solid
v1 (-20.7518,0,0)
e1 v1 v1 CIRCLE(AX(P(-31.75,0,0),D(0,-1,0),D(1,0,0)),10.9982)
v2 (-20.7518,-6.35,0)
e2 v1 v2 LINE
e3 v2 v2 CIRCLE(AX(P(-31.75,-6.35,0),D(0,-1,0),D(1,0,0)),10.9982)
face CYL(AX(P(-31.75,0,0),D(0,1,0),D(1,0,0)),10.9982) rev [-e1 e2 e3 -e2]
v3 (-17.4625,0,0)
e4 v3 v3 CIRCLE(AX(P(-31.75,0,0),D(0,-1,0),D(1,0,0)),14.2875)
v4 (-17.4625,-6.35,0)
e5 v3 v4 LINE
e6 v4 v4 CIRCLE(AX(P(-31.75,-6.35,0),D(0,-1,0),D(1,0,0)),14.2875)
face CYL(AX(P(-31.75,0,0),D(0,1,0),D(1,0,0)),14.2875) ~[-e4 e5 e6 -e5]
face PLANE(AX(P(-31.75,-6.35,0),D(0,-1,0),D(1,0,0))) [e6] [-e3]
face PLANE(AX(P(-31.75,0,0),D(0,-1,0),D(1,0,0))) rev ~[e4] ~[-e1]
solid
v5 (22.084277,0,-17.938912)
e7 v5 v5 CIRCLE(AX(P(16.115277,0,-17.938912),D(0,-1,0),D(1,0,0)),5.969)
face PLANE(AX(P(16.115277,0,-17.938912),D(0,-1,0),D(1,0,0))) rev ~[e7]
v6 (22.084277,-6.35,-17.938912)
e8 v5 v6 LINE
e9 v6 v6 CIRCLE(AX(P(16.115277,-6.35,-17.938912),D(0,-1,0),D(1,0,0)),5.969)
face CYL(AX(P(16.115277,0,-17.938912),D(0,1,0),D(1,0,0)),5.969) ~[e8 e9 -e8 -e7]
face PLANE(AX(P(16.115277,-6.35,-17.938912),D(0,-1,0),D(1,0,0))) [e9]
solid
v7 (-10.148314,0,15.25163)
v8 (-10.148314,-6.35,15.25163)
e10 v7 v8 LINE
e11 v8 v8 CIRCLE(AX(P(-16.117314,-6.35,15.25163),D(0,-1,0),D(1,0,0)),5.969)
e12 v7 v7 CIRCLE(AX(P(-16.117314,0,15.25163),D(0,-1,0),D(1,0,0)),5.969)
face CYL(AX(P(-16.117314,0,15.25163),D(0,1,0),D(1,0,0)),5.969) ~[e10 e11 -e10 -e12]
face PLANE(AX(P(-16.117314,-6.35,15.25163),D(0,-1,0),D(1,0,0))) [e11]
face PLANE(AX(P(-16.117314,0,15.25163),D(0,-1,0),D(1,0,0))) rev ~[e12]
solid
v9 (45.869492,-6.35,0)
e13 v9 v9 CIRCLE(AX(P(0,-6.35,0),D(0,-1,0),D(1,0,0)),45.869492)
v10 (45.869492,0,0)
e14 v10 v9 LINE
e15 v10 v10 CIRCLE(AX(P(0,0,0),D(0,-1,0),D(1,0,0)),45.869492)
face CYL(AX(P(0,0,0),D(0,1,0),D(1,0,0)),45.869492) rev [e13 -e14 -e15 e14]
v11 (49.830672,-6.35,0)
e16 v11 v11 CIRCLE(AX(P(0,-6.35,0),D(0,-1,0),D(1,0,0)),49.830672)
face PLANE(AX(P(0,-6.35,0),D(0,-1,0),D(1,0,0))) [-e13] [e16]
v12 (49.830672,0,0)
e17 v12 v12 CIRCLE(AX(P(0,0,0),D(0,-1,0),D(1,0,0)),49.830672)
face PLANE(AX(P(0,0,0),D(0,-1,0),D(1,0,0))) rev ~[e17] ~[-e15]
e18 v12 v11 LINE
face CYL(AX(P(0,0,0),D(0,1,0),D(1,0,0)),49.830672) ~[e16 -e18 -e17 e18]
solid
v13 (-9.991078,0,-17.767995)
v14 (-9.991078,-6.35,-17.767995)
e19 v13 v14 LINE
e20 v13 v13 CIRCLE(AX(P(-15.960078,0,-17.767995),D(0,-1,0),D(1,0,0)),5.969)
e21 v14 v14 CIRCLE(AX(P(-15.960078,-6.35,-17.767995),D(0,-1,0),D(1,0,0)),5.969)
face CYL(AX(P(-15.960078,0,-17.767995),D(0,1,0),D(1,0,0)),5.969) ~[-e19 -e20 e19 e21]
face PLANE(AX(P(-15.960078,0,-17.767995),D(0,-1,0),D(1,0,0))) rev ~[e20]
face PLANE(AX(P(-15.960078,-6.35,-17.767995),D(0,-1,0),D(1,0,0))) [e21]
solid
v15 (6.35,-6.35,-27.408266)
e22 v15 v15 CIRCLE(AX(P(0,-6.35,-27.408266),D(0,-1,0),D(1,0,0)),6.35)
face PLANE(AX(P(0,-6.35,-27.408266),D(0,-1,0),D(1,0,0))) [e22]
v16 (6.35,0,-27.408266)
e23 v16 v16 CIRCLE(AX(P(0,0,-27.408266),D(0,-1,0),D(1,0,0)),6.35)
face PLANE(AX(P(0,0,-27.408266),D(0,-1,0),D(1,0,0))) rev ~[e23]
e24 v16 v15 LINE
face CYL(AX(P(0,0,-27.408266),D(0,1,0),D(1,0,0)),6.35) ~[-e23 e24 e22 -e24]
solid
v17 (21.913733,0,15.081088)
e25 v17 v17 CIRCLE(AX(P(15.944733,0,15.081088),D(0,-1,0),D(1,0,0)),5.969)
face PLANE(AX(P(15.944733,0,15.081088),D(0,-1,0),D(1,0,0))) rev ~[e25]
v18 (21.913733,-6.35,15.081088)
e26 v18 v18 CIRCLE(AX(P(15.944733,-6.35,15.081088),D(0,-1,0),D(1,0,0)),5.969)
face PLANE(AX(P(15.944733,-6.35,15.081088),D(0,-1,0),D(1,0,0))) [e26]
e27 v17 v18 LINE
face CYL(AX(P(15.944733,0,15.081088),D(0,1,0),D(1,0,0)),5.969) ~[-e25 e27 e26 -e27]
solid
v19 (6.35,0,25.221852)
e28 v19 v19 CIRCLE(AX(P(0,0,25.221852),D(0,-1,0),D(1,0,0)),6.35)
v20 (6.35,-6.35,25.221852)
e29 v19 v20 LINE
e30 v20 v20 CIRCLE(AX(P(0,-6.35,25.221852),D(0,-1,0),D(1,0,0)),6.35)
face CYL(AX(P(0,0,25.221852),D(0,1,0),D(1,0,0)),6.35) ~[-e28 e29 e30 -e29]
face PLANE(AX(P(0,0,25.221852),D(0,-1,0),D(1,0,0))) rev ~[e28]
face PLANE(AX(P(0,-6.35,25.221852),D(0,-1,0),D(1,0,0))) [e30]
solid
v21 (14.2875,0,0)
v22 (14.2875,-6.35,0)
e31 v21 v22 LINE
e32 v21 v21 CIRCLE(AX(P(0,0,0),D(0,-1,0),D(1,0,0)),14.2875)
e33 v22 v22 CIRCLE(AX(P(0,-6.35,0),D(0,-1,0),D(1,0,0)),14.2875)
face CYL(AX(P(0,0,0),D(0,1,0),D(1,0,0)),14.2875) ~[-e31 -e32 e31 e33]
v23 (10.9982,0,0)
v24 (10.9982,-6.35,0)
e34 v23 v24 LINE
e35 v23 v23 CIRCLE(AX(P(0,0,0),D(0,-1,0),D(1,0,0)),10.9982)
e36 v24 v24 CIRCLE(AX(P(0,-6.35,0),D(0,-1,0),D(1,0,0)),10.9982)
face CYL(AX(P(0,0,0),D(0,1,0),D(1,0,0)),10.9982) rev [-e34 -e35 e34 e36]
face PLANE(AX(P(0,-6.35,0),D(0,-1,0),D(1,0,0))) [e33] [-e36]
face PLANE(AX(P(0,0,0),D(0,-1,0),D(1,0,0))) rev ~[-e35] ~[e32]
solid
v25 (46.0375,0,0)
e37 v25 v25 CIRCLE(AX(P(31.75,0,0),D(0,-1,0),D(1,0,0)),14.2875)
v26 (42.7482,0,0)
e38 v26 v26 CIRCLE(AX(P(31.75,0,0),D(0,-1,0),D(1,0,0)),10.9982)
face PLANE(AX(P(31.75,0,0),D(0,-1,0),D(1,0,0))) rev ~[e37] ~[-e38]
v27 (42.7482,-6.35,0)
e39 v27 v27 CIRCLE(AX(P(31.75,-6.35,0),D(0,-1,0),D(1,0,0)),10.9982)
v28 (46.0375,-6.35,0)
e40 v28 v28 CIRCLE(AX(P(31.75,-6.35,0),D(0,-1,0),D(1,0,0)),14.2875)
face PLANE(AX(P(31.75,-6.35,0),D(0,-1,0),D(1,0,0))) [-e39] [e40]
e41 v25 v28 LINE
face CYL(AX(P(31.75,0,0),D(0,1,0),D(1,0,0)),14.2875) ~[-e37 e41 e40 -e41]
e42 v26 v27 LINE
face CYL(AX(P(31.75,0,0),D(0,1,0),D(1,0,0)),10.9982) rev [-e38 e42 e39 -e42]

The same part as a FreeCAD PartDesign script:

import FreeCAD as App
import Part
import Sketcher

V = App.Vector
Q = App.Units.Quantity

doc = App.newDocument("Part")
params = doc.addObject("Spreadsheet::Sheet", "Params")
for row, (alias, value) in enumerate([
    ("sketch1_diameter", "1.125 in"),
    ("sketch1_diameter2", "0.866 in"),
    ("pad1_length", "0.25 in"),
    ("sketch2_diameter", "1.125 in"),
    ("sketch2_diameter2", "0.866 in"),
    ("pad2_length", "0.25 in"),
    ("sketch3_diameter", "1.125 in"),
    ("sketch3_diameter2", "0.866 in"),
    ("pad3_length", "0.25 in"),
    ("pad4_length", "0.25 in"),
    ("sketch5_diameter", "0.47 in"),
    ("pad5_length", "0.25 in"),
    ("sketch6_diameter", "0.47 in"),
    ("pad6_length", "0.25 in"),
    ("sketch7_diameter", "0.47 in"),
    ("pad7_length", "0.25 in"),
    ("sketch8_diameter", "0.47 in"),
    ("pad8_length", "0.25 in"),
    ("sketch9_diameter", "0.5 in"),
    ("pad9_length", "0.25 in"),
    ("sketch10_diameter", "0.5 in"),
    ("pad10_length", "0.25 in"),
], start=1):
    params.set(f"A{row}", alias)
    params.set(f"B{row}", "=" + value)
    params.setAlias(f"B{row}", alias)

body = doc.addObject("PartDesign::Body", "Body")

# Sketch on XZ plane
sketch1 = body.newObject("Sketcher::SketchObject", "Sketch")
sketch1.AttachmentSupport = (doc.getObject("XZ_Plane"), [""])
sketch1.MapMode = "FlatFace"
sketch1.addGeometry(Part.Circle(V(0, 0, 0), V(0, 0, 1), 14.2875), False)
sketch1.addGeometry(Part.Circle(V(0, 0, 0), V(0, 0, 1), 10.9982), False)
sketch1.addConstraint(Sketcher.Constraint("Coincident", 0, 3, -1, 1))
sketch1.addConstraint(Sketcher.Constraint("Coincident", 1, 3, -1, 1))
sketch1.addConstraint(Sketcher.Constraint("Diameter", 0, Q("1.125 in")))
sketch1.addConstraint(Sketcher.Constraint("Diameter", 1, Q("0.866 in")))
sketch1.setExpression("Constraints[2]", "Params.sketch1_diameter")
sketch1.setExpression("Constraints[3]", "Params.sketch1_diameter2")
pad1 = body.newObject("PartDesign::Pad", "Pad")
pad1.Profile = sketch1
pad1.setExpression("Length", "Params.pad1_length")
body2 = doc.addObject("PartDesign::Body", "Body001")

# Sketch on XZ plane
sketch2 = body2.newObject("Sketcher::SketchObject", "Sketch001")
sketch2.AttachmentSupport = (doc.getObject("XZ_Plane001"), [""])
sketch2.MapMode = "FlatFace"
sketch2.addGeometry(Part.Circle(V(31.75, 0, 0), V(0, 0, 1), 14.2875), False)
sketch2.addGeometry(Part.Circle(V(31.75, 0, 0), V(0, 0, 1), 10.9982), False)
sketch2.addConstraint(Sketcher.Constraint("Coincident", 1, 3, 0, 3))
sketch2.addConstraint(Sketcher.Constraint("PointOnObject", 0, 3, -1))
sketch2.addConstraint(Sketcher.Constraint("Diameter", 0, Q("1.125 in")))
sketch2.addConstraint(Sketcher.Constraint("Diameter", 1, Q("0.866 in")))
sketch2.addConstraint(Sketcher.Constraint("DistanceX", -1, 1, 0, 3, Q("1.25 in")))
sketch2.setExpression("Constraints[2]", "Params.sketch2_diameter")
sketch2.setExpression("Constraints[3]", "Params.sketch2_diameter2")
pad2 = body2.newObject("PartDesign::Pad", "Pad001")
pad2.Profile = sketch2
pad2.setExpression("Length", "Params.pad2_length")
body3 = doc.addObject("PartDesign::Body", "Body002")

# Sketch on XZ plane
sketch3 = body3.newObject("Sketcher::SketchObject", "Sketch002")
sketch3.AttachmentSupport = (doc.getObject("XZ_Plane002"), [""])
sketch3.MapMode = "FlatFace"
sketch3.addGeometry(Part.Circle(V(-31.75, 0, 0), V(0, 0, 1), 14.2875), False)
sketch3.addGeometry(Part.Circle(V(-31.75, 0, 0), V(0, 0, 1), 10.9982), False)
sketch3.addConstraint(Sketcher.Constraint("Coincident", 1, 3, 0, 3))
sketch3.addConstraint(Sketcher.Constraint("PointOnObject", 0, 3, -1))
sketch3.addConstraint(Sketcher.Constraint("Diameter", 0, Q("1.125 in")))
sketch3.addConstraint(Sketcher.Constraint("Diameter", 1, Q("0.866 in")))
sketch3.addConstraint(Sketcher.Constraint("DistanceX", 0, 3, -1, 1, Q("1.25 in")))
sketch3.setExpression("Constraints[2]", "Params.sketch3_diameter")
sketch3.setExpression("Constraints[3]", "Params.sketch3_diameter2")
pad3 = body3.newObject("PartDesign::Pad", "Pad002")
pad3.Profile = sketch3
pad3.setExpression("Length", "Params.pad3_length")
body4 = doc.addObject("PartDesign::Body", "Body003")

# Sketch on XZ plane
sketch4 = body4.newObject("Sketcher::SketchObject", "Sketch003")
sketch4.AttachmentSupport = (doc.getObject("XZ_Plane003"), [""])
sketch4.MapMode = "FlatFace"
sketch4.addGeometry(Part.Circle(V(0, 0, 0), V(0, 0, 1), 49.830672), False)
sketch4.addGeometry(Part.Circle(V(0, 0, 0), V(0, 0, 1), 45.869492), False)
sketch4.addConstraint(Sketcher.Constraint("Coincident", 0, 3, -1, 1))
sketch4.addConstraint(Sketcher.Constraint("Coincident", 1, 3, -1, 1))
sketch4.addConstraint(Sketcher.Constraint("Diameter", 0, 99.661344))
sketch4.addConstraint(Sketcher.Constraint("Diameter", 1, 91.738985))
pad4 = body4.newObject("PartDesign::Pad", "Pad003")
pad4.Profile = sketch4
pad4.setExpression("Length", "Params.pad4_length")
body5 = doc.addObject("PartDesign::Body", "Body004")

# Sketch on XZ plane
sketch5 = body5.newObject("Sketcher::SketchObject", "Sketch004")
sketch5.AttachmentSupport = (doc.getObject("XZ_Plane004"), [""])
sketch5.MapMode = "FlatFace"
sketch5.addGeometry(Part.Circle(V(15.944733, 15.081088, 0), V(0, 0, 1), 5.969), False)
sketch5.addConstraint(Sketcher.Constraint("Diameter", 0, Q("0.47 in")))
sketch5.addConstraint(Sketcher.Constraint("DistanceX", -1, 1, 0, 3, 15.944733))
sketch5.addConstraint(Sketcher.Constraint("DistanceY", -1, 1, 0, 3, 15.081088))
sketch5.setExpression("Constraints[0]", "Params.sketch5_diameter")
pad5 = body5.newObject("PartDesign::Pad", "Pad004")
pad5.Profile = sketch5
pad5.setExpression("Length", "Params.pad5_length")
body6 = doc.addObject("PartDesign::Body", "Body005")

# Sketch on XZ plane
sketch6 = body6.newObject("Sketcher::SketchObject", "Sketch005")
sketch6.AttachmentSupport = (doc.getObject("XZ_Plane005"), [""])
sketch6.MapMode = "FlatFace"
sketch6.addGeometry(Part.Circle(V(-16.117314, 15.25163, 0), V(0, 0, 1), 5.969), False)
sketch6.addConstraint(Sketcher.Constraint("Diameter", 0, Q("0.47 in")))
sketch6.addConstraint(Sketcher.Constraint("DistanceY", -1, 1, 0, 3, 15.25163))
sketch6.addConstraint(Sketcher.Constraint("DistanceX", 0, 3, -1, 1, 16.117314))
sketch6.setExpression("Constraints[0]", "Params.sketch6_diameter")
pad6 = body6.newObject("PartDesign::Pad", "Pad005")
pad6.Profile = sketch6
pad6.setExpression("Length", "Params.pad6_length")
body7 = doc.addObject("PartDesign::Body", "Body006")

# Sketch on XZ plane
sketch7 = body7.newObject("Sketcher::SketchObject", "Sketch006")
sketch7.AttachmentSupport = (doc.getObject("XZ_Plane006"), [""])
sketch7.MapMode = "FlatFace"
sketch7.addGeometry(Part.Circle(V(-15.960078, -17.767995, 0), V(0, 0, 1), 5.969), False)
sketch7.addConstraint(Sketcher.Constraint("Diameter", 0, Q("0.47 in")))
sketch7.addConstraint(Sketcher.Constraint("DistanceX", 0, 3, -1, 1, 15.960078))
sketch7.addConstraint(Sketcher.Constraint("DistanceY", 0, 3, -1, 1, 17.767995))
sketch7.setExpression("Constraints[0]", "Params.sketch7_diameter")
pad7 = body7.newObject("PartDesign::Pad", "Pad006")
pad7.Profile = sketch7
pad7.setExpression("Length", "Params.pad7_length")
body8 = doc.addObject("PartDesign::Body", "Body007")

# Sketch on XZ plane
sketch8 = body8.newObject("Sketcher::SketchObject", "Sketch007")
sketch8.AttachmentSupport = (doc.getObject("XZ_Plane007"), [""])
sketch8.MapMode = "FlatFace"
sketch8.addGeometry(Part.Circle(V(16.115277, -17.938912, 0), V(0, 0, 1), 5.969), False)
sketch8.addConstraint(Sketcher.Constraint("Diameter", 0, Q("0.47 in")))
sketch8.addConstraint(Sketcher.Constraint("DistanceX", -1, 1, 0, 3, 16.115277))
sketch8.addConstraint(Sketcher.Constraint("DistanceY", 0, 3, -1, 1, 17.938912))
sketch8.setExpression("Constraints[0]", "Params.sketch8_diameter")
pad8 = body8.newObject("PartDesign::Pad", "Pad007")
pad8.Profile = sketch8
pad8.setExpression("Length", "Params.pad8_length")
body9 = doc.addObject("PartDesign::Body", "Body008")

# Sketch on XZ plane
sketch9 = body9.newObject("Sketcher::SketchObject", "Sketch008")
sketch9.AttachmentSupport = (doc.getObject("XZ_Plane008"), [""])
sketch9.MapMode = "FlatFace"
sketch9.addGeometry(Part.Circle(V(0, 25.221852, 0), V(0, 0, 1), 6.35), False)
sketch9.addConstraint(Sketcher.Constraint("PointOnObject", 0, 3, -2))
sketch9.addConstraint(Sketcher.Constraint("Diameter", 0, Q("0.5 in")))
sketch9.addConstraint(Sketcher.Constraint("DistanceY", -1, 1, 0, 3, 25.221852))
sketch9.setExpression("Constraints[1]", "Params.sketch9_diameter")
pad9 = body9.newObject("PartDesign::Pad", "Pad008")
pad9.Profile = sketch9
pad9.setExpression("Length", "Params.pad9_length")
body10 = doc.addObject("PartDesign::Body", "Body009")

# Sketch on XZ plane
sketch10 = body10.newObject("Sketcher::SketchObject", "Sketch009")
sketch10.AttachmentSupport = (doc.getObject("XZ_Plane009"), [""])
sketch10.MapMode = "FlatFace"
sketch10.addGeometry(Part.Circle(V(0, -27.408266, 0), V(0, 0, 1), 6.35), False)
sketch10.addConstraint(Sketcher.Constraint("PointOnObject", 0, 3, -2))
sketch10.addConstraint(Sketcher.Constraint("Diameter", 0, Q("0.5 in")))
sketch10.addConstraint(Sketcher.Constraint("DistanceY", 0, 3, -1, 1, 27.408266))
sketch10.setExpression("Constraints[1]", "Params.sketch10_diameter")
pad10 = body10.newObject("PartDesign::Pad", "Pad009")
pad10.Profile = sketch10
pad10.setExpression("Length", "Params.pad10_length")

doc.recompute()
